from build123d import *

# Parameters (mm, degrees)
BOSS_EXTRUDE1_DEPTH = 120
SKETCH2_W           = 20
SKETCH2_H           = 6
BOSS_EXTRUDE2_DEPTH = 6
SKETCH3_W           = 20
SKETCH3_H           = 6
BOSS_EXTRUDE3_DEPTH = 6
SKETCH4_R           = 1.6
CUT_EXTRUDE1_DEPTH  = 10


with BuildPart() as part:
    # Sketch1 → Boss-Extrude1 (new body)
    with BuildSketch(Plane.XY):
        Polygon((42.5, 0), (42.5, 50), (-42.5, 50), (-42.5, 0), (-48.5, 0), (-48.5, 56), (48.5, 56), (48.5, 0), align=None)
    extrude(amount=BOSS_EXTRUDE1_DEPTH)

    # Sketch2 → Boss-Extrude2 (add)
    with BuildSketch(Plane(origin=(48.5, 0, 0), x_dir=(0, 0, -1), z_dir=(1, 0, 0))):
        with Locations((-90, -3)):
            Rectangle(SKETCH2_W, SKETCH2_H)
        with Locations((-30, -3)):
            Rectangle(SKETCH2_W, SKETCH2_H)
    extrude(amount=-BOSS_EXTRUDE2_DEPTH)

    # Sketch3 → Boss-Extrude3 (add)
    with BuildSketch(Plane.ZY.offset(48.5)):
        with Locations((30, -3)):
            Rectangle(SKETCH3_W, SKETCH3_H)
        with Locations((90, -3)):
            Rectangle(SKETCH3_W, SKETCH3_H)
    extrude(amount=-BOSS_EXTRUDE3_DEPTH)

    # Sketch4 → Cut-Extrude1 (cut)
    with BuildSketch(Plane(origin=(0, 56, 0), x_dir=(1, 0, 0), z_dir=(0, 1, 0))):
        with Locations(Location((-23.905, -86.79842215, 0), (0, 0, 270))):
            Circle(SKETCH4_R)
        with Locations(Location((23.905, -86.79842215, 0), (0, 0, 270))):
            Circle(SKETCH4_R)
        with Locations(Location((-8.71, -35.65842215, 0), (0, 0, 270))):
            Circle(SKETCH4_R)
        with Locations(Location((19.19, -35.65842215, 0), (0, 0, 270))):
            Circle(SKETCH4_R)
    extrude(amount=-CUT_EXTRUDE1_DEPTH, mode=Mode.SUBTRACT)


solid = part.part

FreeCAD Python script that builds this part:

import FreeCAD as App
import Part
import Sketcher
from FreeCAD import Vector

doc = App.newDocument("Part")
body = doc.addObject("PartDesign::Body", "Body")

# Sketch on XY plane
sketch1 = doc.addObject("Sketcher::SketchObject", "Sketch")
body.addObject(sketch1)
sketch1.AttachmentSupport = (doc.XY_Plane, [""])
sketch1.MapMode = "FlatFace"
sketch1.addGeometry(Part.LineSegment(Vector(42.5, 50, 0), Vector(42.5, 0, 0)), False)
sketch1.addGeometry(Part.LineSegment(Vector(42.5, 0, 0), Vector(48.5, 0, 0)), False)
sketch1.addGeometry(Part.LineSegment(Vector(48.5, 0, 0), Vector(48.5, 56, 0)), False)
sketch1.addGeometry(Part.LineSegment(Vector(48.5, 56, 0), Vector(-48.5, 56, 0)), False)
sketch1.addGeometry(Part.LineSegment(Vector(-48.5, 56, 0), Vector(-48.5, 0, 0)), False)
sketch1.addGeometry(Part.LineSegment(Vector(-48.5, 0, 0), Vector(-42.5, 0, 0)), False)
sketch1.addGeometry(Part.LineSegment(Vector(-42.5, 0, 0), Vector(-42.5, 50, 0)), False)
sketch1.addGeometry(Part.LineSegment(Vector(-42.5, 50, 0), Vector(42.5, 50, 0)), False)
sketch1.addConstraint(Sketcher.Constraint("Coincident", 0, 2, 1, 1))
sketch1.addConstraint(Sketcher.Constraint("Coincident", 1, 2, 2, 1))
sketch1.addConstraint(Sketcher.Constraint("Coincident", 2, 2, 3, 1))
sketch1.addConstraint(Sketcher.Constraint("Coincident", 3, 2, 4, 1))
sketch1.addConstraint(Sketcher.Constraint("Coincident", 4, 2, 5, 1))
sketch1.addConstraint(Sketcher.Constraint("Coincident", 5, 2, 6, 1))
sketch1.addConstraint(Sketcher.Constraint("Coincident", 6, 2, 7, 1))
sketch1.addConstraint(Sketcher.Constraint("Coincident", 7, 2, 0, 1))
sketch1.addConstraint(Sketcher.Constraint("Vertical", 0))
sketch1.addConstraint(Sketcher.Constraint("Horizontal", 1))
sketch1.addConstraint(Sketcher.Constraint("Vertical", 2))
sketch1.addConstraint(Sketcher.Constraint("Horizontal", 3))
sketch1.addConstraint(Sketcher.Constraint("Vertical", 4))
sketch1.addConstraint(Sketcher.Constraint("Horizontal", 5))
sketch1.addConstraint(Sketcher.Constraint("Vertical", 6))
sketch1.addConstraint(Sketcher.Constraint("Horizontal", 7))
sketch1.addConstraint(Sketcher.Constraint("Symmetric", 1, 2, 4, 2, -1, 1))
sketch1.addConstraint(Sketcher.Constraint("Symmetric", 0, 2, 5, 2, -2))
sketch1.addConstraint(Sketcher.Constraint("DistanceX", 1, 1, 1, 2, 6.0))
sketch1.addConstraint(Sketcher.Constraint("DistanceX", 3, 2, 3, 1, 97.0))
sketch1.addConstraint(Sketcher.Constraint("DistanceY", 0, 2, 0, 1, 50.0))
sketch1.addConstraint(Sketcher.Constraint("DistanceY", 2, 1, 2, 2, 56.0))
pad1 = doc.addObject("PartDesign::Pad", "Pad")
body.addObject(pad1)
pad1.Profile = sketch1
pad1.Length = 120

# Sketch on YZ plane
sketch2 = doc.addObject("Sketcher::SketchObject", "Sketch001")
body.addObject(sketch2)
sketch2.AttachmentSupport = (doc.YZ_Plane, [""])
sketch2.MapMode = "FlatFace"
sketch2.AttachmentOffset = App.Placement(Vector(0, 0, 48.5), App.Rotation())
sketch2.addGeometry(Part.LineSegment(Vector(0, 100, 0), Vector(-6, 100, 0)), False)
sketch2.addGeometry(Part.LineSegment(Vector(-6, 100, 0), Vector(-6, 80, 0)), False)
sketch2.addGeometry(Part.LineSegment(Vector(-6, 80, 0), Vector(0, 80, 0)), False)
sketch2.addGeometry(Part.LineSegment(Vector(0, 80, 0), Vector(0, 100, 0)), False)
sketch2.addGeometry(Part.LineSegment(Vector(0, 40, 0), Vector(-6, 40, 0)), False)
sketch2.addGeometry(Part.LineSegment(Vector(-6, 40, 0), Vector(-6, 20, 0)), False)
sketch2.addGeometry(Part.LineSegment(Vector(-6, 20, 0), Vector(0, 20, 0)), False)
sketch2.addGeometry(Part.LineSegment(Vector(0, 20, 0), Vector(0, 40, 0)), False)
sketch2.addConstraint(Sketcher.Constraint("Coincident", 0, 2, 1, 1))
sketch2.addConstraint(Sketcher.Constraint("Coincident", 1, 2, 2, 1))
sketch2.addConstraint(Sketcher.Constraint("Coincident", 2, 2, 3, 1))
sketch2.addConstraint(Sketcher.Constraint("Coincident", 3, 2, 0, 1))
sketch2.addConstraint(Sketcher.Constraint("Coincident", 4, 2, 5, 1))
sketch2.addConstraint(Sketcher.Constraint("Coincident", 5, 2, 6, 1))
sketch2.addConstraint(Sketcher.Constraint("Coincident", 6, 2, 7, 1))
sketch2.addConstraint(Sketcher.Constraint("Coincident", 7, 2, 4, 1))
sketch2.addConstraint(Sketcher.Constraint("Horizontal", 0))
sketch2.addConstraint(Sketcher.Constraint("Vertical", 1))
sketch2.addConstraint(Sketcher.Constraint("Horizontal", 2))
sketch2.addConstraint(Sketcher.Constraint("Vertical", 3))
sketch2.addConstraint(Sketcher.Constraint("Horizontal", 4))
sketch2.addConstraint(Sketcher.Constraint("Vertical", 5))
sketch2.addConstraint(Sketcher.Constraint("Horizontal", 6))
sketch2.addConstraint(Sketcher.Constraint("Vertical", 7))
sketch2.addConstraint(Sketcher.Constraint("PointOnObject", 2, 2, -2))
sketch2.addConstraint(Sketcher.Constraint("PointOnObject", 6, 2, -2))
sketch2.addConstraint(Sketcher.Constraint("Vertical", 1, 2, 4, 2))
sketch2.addConstraint(Sketcher.Constraint("Equal", 3, 5))
sketch2.addConstraint(Sketcher.Constraint("DistanceX", 0, 2, 0, 1, 6.0))
sketch2.addConstraint(Sketcher.Constraint("DistanceY", 1, 2, 1, 1, 20.0))
sketch2.addConstraint(Sketcher.Constraint("DistanceY", -1, 1, 0, 2, 100.0))
sketch2.addConstraint(Sketcher.Constraint("DistanceY", -1, 1, 4, 2, 40.0))
pad2 = doc.addObject("PartDesign::Pad", "Pad001")
body.addObject(pad2)
pad2.Profile = sketch2
pad2.Length = 6
pad2.Reversed = True

# Sketch on YZ plane
sketch3 = doc.addObject("Sketcher::SketchObject", "Sketch002")
body.addObject(sketch3)
sketch3.AttachmentSupport = (doc.YZ_Plane, [""])
sketch3.MapMode = "FlatFace"
sketch3.AttachmentOffset = App.Placement(Vector(0, 0, -48.5), App.Rotation())
sketch3.addGeometry(Part.LineSegment(Vector(0, 20, 0), Vector(-6, 20, 0)), False)
sketch3.addGeometry(Part.LineSegment(Vector(-6, 20, 0), Vector(-6, 40, 0)), False)
sketch3.addGeometry(Part.LineSegment(Vector(-6, 40, 0), Vector(0, 40, 0)), False)
sketch3.addGeometry(Part.LineSegment(Vector(0, 40, 0), Vector(0, 20, 0)), False)
sketch3.addGeometry(Part.LineSegment(Vector(0, 80, 0), Vector(-6, 80, 0)), False)
sketch3.addGeometry(Part.LineSegment(Vector(-6, 80, 0), Vector(-6, 100, 0)), False)
sketch3.addGeometry(Part.LineSegment(Vector(-6, 100, 0), Vector(0, 100, 0)), False)
sketch3.addGeometry(Part.LineSegment(Vector(0, 100, 0), Vector(0, 80, 0)), False)
sketch3.addConstraint(Sketcher.Constraint("Coincident", 0, 2, 1, 1))
sketch3.addConstraint(Sketcher.Constraint("Coincident", 1, 2, 2, 1))
sketch3.addConstraint(Sketcher.Constraint("Coincident", 2, 2, 3, 1))
sketch3.addConstraint(Sketcher.Constraint("Coincident", 3, 2, 0, 1))
sketch3.addConstraint(Sketcher.Constraint("Coincident", 4, 2, 5, 1))
sketch3.addConstraint(Sketcher.Constraint("Coincident", 5, 2, 6, 1))
sketch3.addConstraint(Sketcher.Constraint("Coincident", 6, 2, 7, 1))
sketch3.addConstraint(Sketcher.Constraint("Coincident", 7, 2, 4, 1))
sketch3.addConstraint(Sketcher.Constraint("Horizontal", 0))
sketch3.addConstraint(Sketcher.Constraint("Vertical", 1))
sketch3.addConstraint(Sketcher.Constraint("Horizontal", 2))
sketch3.addConstraint(Sketcher.Constraint("Vertical", 3))
sketch3.addConstraint(Sketcher.Constraint("Horizontal", 4))
sketch3.addConstraint(Sketcher.Constraint("Vertical", 5))
sketch3.addConstraint(Sketcher.Constraint("Horizontal", 6))
sketch3.addConstraint(Sketcher.Constraint("Vertical", 7))
sketch3.addConstraint(Sketcher.Constraint("PointOnObject", 2, 2, -2))
sketch3.addConstraint(Sketcher.Constraint("PointOnObject", 6, 2, -2))
sketch3.addConstraint(Sketcher.Constraint("Vertical", 1, 2, 4, 2))
sketch3.addConstraint(Sketcher.Constraint("Equal", 3, 5))
sketch3.addConstraint(Sketcher.Constraint("DistanceX", 0, 2, 0, 1, 6.0))
sketch3.addConstraint(Sketcher.Constraint("DistanceY", 1, 1, 1, 2, 20.0))
sketch3.addConstraint(Sketcher.Constraint("DistanceY", -1, 1, 0, 2, 20.0))
sketch3.addConstraint(Sketcher.Constraint("DistanceY", -1, 1, 4, 2, 80.0))
pad3 = doc.addObject("PartDesign::Pad", "Pad002")
body.addObject(pad3)
pad3.Profile = sketch3
pad3.Length = 6

# Sketch on XZ plane
sketch4 = doc.addObject("Sketcher::SketchObject", "Sketch003")
body.addObject(sketch4)
sketch4.AttachmentSupport = (doc.XZ_Plane, [""])
sketch4.MapMode = "FlatFace"
sketch4.AttachmentOffset = App.Placement(Vector(0, 0, -56), App.Rotation())
sketch4.addGeometry(Part.Circle(Vector(-23.905, 86.798422, 0), Vector(0, 0, 1), 1.6), False)
sketch4.addGeometry(Part.Circle(Vector(23.905, 86.798422, 0), Vector(0, 0, 1), 1.6), False)
sketch4.addGeometry(Part.Circle(Vector(-8.71, 35.658422, 0), Vector(0, 0, 1), 1.6), False)
sketch4.addGeometry(Part.Circle(Vector(19.19, 35.658422, 0), Vector(0, 0, 1), 1.6), False)
sketch4.addConstraint(Sketcher.Constraint("Equal", 0, 1))
sketch4.addConstraint(Sketcher.Constraint("Equal", 1, 2))
sketch4.addConstraint(Sketcher.Constraint("Equal", 2, 3))
sketch4.addConstraint(Sketcher.Constraint("Symmetric", 0, 3, 1, 3, -2))
sketch4.addConstraint(Sketcher.Constraint("Horizontal", 2, 3, 3, 3))
sketch4.addConstraint(Sketcher.Constraint("Diameter", 0, 3.2))
sketch4.addConstraint(Sketcher.Constraint("DistanceX", 2, 3, 3, 3, 27.9))
sketch4.addConstraint(Sketcher.Constraint("DistanceX", 2, 3, -1, 1, 8.71))
sketch4.addConstraint(Sketcher.Constraint("DistanceX", 0, 3, 1, 3, 47.81))
sketch4.addConstraint(Sketcher.Constraint("DistanceY", 2, 3, 0, 3, 51.14))
sketch4.addConstraint(Sketcher.Constraint("DistanceY", -1, 1, 0, 3, 86.798422))
pocket1 = doc.addObject("PartDesign::Pocket", "Pocket")
body.addObject(pocket1)
pocket1.Profile = sketch4
pocket1.Length = 10
pocket1.Reversed = True

doc.recompute()
